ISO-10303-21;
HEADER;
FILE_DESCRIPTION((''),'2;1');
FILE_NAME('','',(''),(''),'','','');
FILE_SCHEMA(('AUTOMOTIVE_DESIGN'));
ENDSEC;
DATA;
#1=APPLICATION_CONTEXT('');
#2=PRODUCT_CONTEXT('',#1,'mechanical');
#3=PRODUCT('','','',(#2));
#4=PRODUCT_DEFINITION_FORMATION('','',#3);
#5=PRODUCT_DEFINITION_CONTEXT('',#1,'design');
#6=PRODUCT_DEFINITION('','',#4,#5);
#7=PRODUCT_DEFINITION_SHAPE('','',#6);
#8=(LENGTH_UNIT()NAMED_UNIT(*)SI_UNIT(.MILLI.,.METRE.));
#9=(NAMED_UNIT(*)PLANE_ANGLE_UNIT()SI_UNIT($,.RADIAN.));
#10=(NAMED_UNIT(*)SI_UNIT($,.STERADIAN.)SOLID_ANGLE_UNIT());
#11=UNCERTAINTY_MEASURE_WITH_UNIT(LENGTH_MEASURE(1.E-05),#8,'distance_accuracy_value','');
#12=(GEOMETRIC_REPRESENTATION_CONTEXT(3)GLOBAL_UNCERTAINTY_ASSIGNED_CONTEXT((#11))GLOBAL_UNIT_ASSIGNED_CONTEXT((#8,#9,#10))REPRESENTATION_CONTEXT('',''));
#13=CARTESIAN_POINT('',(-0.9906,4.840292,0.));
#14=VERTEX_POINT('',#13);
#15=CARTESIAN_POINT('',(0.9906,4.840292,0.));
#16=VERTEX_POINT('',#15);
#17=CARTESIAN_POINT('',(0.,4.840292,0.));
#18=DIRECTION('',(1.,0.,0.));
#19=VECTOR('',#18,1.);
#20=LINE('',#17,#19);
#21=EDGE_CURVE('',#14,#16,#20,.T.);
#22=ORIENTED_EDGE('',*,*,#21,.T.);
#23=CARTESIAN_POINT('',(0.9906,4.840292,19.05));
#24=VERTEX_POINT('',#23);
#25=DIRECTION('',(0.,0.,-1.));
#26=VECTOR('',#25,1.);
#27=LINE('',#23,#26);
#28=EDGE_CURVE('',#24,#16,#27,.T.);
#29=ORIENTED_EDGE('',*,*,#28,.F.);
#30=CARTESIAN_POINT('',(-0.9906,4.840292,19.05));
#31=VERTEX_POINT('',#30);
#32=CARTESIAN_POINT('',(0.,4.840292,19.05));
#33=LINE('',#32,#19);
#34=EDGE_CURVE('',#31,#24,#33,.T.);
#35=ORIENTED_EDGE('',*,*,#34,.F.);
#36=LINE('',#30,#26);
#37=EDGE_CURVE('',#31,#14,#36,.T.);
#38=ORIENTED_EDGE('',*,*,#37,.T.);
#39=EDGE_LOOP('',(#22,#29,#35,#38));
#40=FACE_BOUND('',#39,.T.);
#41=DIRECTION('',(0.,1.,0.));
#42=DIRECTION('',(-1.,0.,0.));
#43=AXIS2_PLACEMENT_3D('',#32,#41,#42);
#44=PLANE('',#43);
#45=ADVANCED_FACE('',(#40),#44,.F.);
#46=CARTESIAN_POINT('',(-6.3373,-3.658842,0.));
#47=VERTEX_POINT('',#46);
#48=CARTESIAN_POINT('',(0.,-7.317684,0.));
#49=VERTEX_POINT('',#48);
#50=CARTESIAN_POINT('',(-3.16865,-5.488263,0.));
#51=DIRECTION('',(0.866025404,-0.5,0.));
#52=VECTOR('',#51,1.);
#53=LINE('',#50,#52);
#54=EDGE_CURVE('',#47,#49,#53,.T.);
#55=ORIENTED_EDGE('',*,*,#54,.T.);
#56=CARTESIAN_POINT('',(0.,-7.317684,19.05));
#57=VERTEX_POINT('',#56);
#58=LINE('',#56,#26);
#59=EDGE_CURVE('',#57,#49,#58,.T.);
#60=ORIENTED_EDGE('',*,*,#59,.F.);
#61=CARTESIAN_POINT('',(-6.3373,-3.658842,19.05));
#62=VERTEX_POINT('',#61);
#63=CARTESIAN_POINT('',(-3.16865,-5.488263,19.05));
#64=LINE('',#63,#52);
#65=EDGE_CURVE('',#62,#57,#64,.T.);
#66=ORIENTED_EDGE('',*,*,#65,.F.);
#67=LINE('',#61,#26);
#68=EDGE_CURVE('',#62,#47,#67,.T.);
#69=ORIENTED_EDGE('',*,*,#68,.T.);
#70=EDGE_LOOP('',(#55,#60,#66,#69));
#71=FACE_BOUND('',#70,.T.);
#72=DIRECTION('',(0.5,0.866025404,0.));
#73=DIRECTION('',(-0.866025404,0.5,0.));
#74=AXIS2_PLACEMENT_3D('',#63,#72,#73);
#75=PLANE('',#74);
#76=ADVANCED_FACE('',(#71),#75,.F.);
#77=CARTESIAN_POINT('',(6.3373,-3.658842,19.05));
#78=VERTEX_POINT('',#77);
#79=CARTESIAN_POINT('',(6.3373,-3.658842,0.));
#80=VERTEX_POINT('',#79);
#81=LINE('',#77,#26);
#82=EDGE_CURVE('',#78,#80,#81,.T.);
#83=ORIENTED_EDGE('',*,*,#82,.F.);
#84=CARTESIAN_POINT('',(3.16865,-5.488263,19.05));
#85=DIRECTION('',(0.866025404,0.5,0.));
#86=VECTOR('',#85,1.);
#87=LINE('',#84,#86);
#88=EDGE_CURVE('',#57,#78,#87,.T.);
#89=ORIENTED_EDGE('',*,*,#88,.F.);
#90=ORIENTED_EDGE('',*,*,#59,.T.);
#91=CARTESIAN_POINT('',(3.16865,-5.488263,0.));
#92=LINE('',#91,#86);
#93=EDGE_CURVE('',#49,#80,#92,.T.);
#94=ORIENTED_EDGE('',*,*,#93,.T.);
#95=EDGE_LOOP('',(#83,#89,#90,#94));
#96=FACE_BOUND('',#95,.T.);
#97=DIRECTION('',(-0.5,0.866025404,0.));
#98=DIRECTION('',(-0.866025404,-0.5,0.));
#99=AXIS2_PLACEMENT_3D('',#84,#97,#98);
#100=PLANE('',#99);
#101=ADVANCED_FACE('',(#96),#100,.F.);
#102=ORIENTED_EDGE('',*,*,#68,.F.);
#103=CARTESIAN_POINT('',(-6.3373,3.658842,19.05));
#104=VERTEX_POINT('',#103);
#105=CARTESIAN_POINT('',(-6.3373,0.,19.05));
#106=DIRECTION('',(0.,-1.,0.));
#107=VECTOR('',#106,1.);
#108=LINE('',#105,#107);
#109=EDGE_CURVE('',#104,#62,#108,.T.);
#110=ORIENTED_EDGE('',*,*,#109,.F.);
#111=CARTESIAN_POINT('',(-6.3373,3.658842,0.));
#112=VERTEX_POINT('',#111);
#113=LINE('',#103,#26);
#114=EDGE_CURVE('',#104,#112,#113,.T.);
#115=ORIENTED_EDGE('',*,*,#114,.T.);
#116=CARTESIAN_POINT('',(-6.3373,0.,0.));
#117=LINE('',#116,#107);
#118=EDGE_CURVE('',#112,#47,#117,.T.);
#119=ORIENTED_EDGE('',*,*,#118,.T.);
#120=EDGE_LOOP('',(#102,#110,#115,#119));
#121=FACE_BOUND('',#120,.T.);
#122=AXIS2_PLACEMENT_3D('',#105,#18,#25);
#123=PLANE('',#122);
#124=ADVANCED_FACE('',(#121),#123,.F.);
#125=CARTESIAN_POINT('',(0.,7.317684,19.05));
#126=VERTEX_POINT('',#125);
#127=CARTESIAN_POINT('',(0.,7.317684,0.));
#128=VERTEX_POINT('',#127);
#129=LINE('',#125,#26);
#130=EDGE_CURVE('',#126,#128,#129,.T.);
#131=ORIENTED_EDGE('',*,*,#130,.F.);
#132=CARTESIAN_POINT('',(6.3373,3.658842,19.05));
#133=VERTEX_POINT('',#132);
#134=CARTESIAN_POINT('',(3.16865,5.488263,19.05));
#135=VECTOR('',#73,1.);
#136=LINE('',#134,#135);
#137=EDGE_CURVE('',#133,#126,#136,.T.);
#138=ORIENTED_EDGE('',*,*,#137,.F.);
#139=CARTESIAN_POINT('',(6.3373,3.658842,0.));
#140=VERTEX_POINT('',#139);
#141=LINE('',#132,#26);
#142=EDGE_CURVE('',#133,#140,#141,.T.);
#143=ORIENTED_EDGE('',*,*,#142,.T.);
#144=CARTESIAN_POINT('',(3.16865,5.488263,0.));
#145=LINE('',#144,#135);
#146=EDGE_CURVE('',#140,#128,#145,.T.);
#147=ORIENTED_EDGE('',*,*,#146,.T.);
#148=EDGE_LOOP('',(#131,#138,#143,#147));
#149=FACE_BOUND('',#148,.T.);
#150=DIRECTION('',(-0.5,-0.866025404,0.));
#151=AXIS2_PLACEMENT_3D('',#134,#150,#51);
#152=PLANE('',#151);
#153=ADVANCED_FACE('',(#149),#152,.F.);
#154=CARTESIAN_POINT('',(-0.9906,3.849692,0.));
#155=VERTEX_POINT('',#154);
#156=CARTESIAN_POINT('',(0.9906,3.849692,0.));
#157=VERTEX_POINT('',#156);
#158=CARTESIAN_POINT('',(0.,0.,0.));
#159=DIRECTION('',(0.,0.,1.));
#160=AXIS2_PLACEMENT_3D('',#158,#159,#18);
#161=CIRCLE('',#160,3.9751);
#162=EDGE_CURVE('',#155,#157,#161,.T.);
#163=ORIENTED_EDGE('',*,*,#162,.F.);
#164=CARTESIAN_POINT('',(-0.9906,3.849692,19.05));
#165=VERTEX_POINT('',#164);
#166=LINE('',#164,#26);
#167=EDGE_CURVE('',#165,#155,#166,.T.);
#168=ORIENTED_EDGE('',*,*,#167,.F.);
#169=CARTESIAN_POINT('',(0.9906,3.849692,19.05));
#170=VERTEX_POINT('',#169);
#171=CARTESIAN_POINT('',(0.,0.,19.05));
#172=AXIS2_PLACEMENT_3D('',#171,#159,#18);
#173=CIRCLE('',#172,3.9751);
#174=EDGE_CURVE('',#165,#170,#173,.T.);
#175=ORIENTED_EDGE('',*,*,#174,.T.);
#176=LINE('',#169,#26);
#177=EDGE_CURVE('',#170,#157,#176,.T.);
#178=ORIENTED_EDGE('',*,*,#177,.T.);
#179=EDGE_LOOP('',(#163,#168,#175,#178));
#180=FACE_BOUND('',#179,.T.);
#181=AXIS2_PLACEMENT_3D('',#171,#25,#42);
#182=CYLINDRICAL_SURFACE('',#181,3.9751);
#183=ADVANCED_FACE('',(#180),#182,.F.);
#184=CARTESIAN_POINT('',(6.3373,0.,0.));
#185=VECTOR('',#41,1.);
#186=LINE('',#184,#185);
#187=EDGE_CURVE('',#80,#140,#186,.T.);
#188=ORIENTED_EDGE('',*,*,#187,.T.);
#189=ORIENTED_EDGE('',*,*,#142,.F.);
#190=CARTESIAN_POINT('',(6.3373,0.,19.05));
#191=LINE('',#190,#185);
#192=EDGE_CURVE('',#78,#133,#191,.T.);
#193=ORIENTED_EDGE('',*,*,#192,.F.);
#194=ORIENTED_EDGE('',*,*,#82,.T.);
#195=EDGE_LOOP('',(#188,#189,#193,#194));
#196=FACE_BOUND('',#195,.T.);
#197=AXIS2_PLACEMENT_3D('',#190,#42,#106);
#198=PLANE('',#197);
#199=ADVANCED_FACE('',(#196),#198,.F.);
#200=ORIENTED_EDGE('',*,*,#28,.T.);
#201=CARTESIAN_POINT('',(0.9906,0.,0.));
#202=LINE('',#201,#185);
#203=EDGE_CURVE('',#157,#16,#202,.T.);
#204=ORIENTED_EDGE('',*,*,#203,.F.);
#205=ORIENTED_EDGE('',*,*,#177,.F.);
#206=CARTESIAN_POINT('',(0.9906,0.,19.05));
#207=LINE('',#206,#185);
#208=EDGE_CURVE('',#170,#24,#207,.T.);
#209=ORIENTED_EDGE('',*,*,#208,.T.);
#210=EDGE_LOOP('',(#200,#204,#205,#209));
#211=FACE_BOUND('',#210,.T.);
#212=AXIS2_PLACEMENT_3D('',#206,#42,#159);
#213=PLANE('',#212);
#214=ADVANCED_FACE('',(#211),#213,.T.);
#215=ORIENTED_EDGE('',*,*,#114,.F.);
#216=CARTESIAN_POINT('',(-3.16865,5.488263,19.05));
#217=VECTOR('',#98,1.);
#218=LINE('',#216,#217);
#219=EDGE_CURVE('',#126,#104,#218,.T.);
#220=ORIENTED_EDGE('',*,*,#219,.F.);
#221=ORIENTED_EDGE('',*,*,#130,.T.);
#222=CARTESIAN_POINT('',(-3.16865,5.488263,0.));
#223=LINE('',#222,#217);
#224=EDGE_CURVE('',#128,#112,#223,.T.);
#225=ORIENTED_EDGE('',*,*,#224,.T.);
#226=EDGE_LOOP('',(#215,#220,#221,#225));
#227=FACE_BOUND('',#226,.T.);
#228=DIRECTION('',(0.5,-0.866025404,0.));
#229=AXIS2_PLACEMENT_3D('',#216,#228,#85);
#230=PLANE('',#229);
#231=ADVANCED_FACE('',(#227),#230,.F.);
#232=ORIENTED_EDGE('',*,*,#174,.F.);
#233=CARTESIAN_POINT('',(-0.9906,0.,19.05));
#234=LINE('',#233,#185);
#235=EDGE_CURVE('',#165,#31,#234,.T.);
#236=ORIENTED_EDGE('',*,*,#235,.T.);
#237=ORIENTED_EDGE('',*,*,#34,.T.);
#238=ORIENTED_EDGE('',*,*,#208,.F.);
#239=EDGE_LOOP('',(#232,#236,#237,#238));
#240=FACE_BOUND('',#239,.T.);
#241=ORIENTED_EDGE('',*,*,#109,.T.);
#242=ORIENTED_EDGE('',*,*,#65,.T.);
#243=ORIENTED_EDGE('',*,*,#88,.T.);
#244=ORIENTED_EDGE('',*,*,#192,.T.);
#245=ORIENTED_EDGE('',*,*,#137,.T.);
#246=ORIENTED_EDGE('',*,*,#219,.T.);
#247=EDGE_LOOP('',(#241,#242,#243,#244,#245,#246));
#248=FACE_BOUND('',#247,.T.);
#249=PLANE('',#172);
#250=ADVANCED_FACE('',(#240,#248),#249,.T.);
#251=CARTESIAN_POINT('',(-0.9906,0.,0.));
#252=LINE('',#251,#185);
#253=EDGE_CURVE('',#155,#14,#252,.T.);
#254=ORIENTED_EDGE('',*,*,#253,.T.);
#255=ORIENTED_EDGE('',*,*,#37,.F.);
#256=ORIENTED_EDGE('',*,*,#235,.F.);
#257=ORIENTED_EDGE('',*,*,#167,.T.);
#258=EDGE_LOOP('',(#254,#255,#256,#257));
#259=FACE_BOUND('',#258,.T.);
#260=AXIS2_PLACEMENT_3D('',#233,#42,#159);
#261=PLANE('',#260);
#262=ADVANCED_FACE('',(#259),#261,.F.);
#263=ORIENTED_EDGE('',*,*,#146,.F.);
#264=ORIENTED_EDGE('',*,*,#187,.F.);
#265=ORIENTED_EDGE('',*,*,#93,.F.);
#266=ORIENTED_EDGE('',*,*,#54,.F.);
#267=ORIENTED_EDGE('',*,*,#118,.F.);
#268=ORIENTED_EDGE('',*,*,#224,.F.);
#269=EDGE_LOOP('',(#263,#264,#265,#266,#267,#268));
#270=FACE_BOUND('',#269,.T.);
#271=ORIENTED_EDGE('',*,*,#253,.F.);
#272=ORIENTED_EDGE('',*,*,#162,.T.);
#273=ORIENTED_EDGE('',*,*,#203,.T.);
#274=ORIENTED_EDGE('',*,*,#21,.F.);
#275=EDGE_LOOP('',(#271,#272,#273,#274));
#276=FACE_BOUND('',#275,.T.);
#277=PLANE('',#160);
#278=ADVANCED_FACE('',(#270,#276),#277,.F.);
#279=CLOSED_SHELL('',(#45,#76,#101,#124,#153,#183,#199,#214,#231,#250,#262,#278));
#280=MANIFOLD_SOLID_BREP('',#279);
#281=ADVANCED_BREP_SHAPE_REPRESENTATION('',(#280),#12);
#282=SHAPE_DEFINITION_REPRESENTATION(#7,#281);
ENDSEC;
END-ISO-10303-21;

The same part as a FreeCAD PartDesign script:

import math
import FreeCAD as App
import Part
import Sketcher
from FreeCAD import Vector
Q = App.Units.Quantity

doc = App.newDocument("Part")
body = doc.addObject("PartDesign::Body", "Body")

# Sketch on XY plane
sketch1 = body.newObject("Sketcher::SketchObject", "Sketch")
sketch1.AttachmentSupport = (doc.getObject("XY_Plane"), [""])
sketch1.MapMode = "FlatFace"
sketch1.addGeometry([
    Part.LineSegment(Vector(6.3, 3.7, 0), Vector(0, 7.3, 0)),  # 0
    Part.LineSegment(Vector(0, 7.3, 0), Vector(-6.3, 3.7, 0)),  # 1
    Part.LineSegment(Vector(-6.3, 3.7, 0), Vector(-6.3, -3.7, 0)),  # 2
    Part.LineSegment(Vector(-6.3, -3.7, 0), Vector(0, -7.3, 0)),  # 3
    Part.LineSegment(Vector(0, -7.3, 0), Vector(6.3, -3.7, 0)),  # 4
    Part.LineSegment(Vector(6.3, -3.7, 0), Vector(6.3, 3.7, 0)),  # 5
    Part.ArcOfCircle(Part.Circle(Vector(0, 0, 0), Vector(0, 0, 1), 4), math.radians(0), math.radians(76)),  # 6
    Part.ArcOfCircle(Part.Circle(Vector(0, 0, 0), Vector(0, 0, 1), 4), math.radians(104), math.radians(360)),  # 7
    Part.LineSegment(Vector(-1, 3.8, 0), Vector(-1, 4.8, 0)),  # 8
    Part.LineSegment(Vector(-1, 4.8, 0), Vector(1, 4.8, 0)),  # 9
    Part.LineSegment(Vector(1, 4.8, 0), Vector(1, 3.8, 0)),  # 10
], False)
sketch1.addConstraint([
    Sketcher.Constraint("Coincident", 0, 2, 1, 1),
    Sketcher.Constraint("Coincident", 1, 2, 2, 1),
    Sketcher.Constraint("Coincident", 2, 2, 3, 1),
    Sketcher.Constraint("Coincident", 3, 2, 4, 1),
    Sketcher.Constraint("Coincident", 4, 2, 5, 1),
    Sketcher.Constraint("Coincident", 5, 2, 0, 1),
    Sketcher.Constraint("Tangent", 6, 1, 7, 2),
    Sketcher.Constraint("Coincident", 7, 1, 8, 1),
    Sketcher.Constraint("Coincident", 8, 2, 9, 1),
    Sketcher.Constraint("Coincident", 9, 2, 10, 1),
    Sketcher.Constraint("Coincident", 10, 2, 6, 2),
    Sketcher.Constraint("Vertical", 2),
    Sketcher.Constraint("Vertical", 5),
    Sketcher.Constraint("Vertical", 8),
    Sketcher.Constraint("Horizontal", 9),
    Sketcher.Constraint("Vertical", 10),
    Sketcher.Constraint("Coincident", 6, 3, -1, 1),
    Sketcher.Constraint("Equal", 6, 7),
    Sketcher.Constraint("Symmetric", 0, 2, 3, 2, -1, 1),
    Sketcher.Constraint("Symmetric", 1, 2, 4, 2, -1, 1),
    Sketcher.Constraint("PointOnObject", 0, 2, -2),
    Sketcher.Constraint("PointOnObject", 6, 1, -1),
    Sketcher.Constraint("Parallel", 0, 3),
    Sketcher.Constraint("Horizontal", 2, 2, 4, 2),
    Sketcher.Constraint("Horizontal", 7, 1, 10, 2),
    Sketcher.Constraint("Angle", 0, Q("150 deg")),
    Sketcher.Constraint("Radius", 6, Q("0.1565 in")),
    Sketcher.Constraint("DistanceX", 9, 1, 9, 2, Q("0.078 in")),
    Sketcher.Constraint("DistanceY", 8, 1, 8, 2, Q("0.039 in")),
    Sketcher.Constraint("DistanceX", 2, 2, 4, 2, Q("0.499 in")),
    Sketcher.Constraint("DistanceY", 2, 2, 2, 1, Q("7.317684 mm")),
])
pad1 = body.newObject("PartDesign::Pad", "Pad")
pad1.Profile = sketch1
pad1.Length = Q("0.75 in")

doc.recompute()
